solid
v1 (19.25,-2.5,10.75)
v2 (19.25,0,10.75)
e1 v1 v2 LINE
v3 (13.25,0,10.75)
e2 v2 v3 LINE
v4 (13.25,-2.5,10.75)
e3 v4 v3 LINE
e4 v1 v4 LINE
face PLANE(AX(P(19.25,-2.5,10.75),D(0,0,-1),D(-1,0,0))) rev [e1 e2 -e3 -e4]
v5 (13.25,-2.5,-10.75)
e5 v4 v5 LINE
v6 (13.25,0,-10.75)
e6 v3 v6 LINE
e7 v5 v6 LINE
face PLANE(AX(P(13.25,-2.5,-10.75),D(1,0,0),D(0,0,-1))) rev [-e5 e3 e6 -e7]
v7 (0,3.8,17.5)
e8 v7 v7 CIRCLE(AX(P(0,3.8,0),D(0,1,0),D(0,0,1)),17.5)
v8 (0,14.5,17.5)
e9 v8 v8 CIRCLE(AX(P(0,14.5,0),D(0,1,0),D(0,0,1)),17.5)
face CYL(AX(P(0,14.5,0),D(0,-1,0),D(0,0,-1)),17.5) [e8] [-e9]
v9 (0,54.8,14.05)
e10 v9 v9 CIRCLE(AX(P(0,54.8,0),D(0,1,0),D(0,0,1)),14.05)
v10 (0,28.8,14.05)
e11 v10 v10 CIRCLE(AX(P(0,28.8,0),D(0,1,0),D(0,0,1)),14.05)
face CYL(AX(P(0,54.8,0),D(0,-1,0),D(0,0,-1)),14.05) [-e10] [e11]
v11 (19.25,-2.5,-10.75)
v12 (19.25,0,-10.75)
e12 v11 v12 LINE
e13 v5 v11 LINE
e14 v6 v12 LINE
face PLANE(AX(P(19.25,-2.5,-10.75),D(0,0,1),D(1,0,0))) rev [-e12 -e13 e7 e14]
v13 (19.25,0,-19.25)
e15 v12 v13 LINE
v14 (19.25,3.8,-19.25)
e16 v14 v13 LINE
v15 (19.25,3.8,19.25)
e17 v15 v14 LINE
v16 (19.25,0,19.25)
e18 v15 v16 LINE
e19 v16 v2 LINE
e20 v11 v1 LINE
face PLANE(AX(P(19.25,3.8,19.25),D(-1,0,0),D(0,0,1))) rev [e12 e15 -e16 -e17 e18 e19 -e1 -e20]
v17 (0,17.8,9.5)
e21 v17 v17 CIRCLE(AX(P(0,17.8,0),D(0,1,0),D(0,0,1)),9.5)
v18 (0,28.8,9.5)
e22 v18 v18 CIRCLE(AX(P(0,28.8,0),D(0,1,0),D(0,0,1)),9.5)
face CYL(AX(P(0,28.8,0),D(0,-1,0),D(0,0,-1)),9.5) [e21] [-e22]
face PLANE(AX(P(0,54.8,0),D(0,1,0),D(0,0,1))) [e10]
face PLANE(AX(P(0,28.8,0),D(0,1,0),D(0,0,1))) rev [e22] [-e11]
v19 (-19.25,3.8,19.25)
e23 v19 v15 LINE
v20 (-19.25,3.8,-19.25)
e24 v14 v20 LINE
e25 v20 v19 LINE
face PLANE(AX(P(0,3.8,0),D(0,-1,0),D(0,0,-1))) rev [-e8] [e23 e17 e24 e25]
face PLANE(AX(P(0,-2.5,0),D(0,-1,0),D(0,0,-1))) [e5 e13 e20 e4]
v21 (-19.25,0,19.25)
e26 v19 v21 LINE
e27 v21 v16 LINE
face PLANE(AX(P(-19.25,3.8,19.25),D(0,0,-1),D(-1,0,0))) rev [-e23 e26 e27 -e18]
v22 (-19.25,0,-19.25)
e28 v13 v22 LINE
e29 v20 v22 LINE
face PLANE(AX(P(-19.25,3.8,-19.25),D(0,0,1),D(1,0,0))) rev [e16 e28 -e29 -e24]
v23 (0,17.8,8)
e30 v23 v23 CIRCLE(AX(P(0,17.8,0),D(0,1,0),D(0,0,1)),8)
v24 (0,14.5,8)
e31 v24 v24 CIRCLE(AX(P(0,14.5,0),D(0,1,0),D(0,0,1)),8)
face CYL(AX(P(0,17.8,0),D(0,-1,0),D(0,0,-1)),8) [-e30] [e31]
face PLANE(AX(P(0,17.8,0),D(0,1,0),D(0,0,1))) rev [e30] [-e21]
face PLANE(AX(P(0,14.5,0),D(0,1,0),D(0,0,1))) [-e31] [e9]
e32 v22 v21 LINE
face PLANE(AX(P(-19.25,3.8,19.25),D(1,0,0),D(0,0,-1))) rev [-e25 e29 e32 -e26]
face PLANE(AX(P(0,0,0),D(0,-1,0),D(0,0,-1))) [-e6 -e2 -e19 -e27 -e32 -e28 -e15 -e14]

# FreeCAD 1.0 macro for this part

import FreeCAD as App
import Part
import Sketcher
from FreeCAD import Vector
Q = App.Units.Quantity

doc = App.newDocument("Part")
body = doc.addObject("PartDesign::Body", "Body")

# Sketch on XZ plane
sketch1 = body.newObject("Sketcher::SketchObject", "Sketch")
sketch1.AttachmentSupport = (doc.getObject("XZ_Plane"), [""])
sketch1.MapMode = "FlatFace"
sketch1.addGeometry([
    Part.LineSegment(Vector(-19, -19, 0), Vector(-19, 19, 0)),
    Part.LineSegment(Vector(-19, 19, 0), Vector(19, 19, 0)),
    Part.LineSegment(Vector(19, 19, 0), Vector(19, -19, 0)),
    Part.LineSegment(Vector(19, -19, 0), Vector(-19, -19, 0)),
], False)
sketch1.addConstraint([
    Sketcher.Constraint("Coincident", 0, 2, 1, 1),
    Sketcher.Constraint("Coincident", 1, 2, 2, 1),
    Sketcher.Constraint("Coincident", 2, 2, 3, 1),
    Sketcher.Constraint("Coincident", 3, 2, 0, 1),
    Sketcher.Constraint("Vertical", 0),
    Sketcher.Constraint("Horizontal", 1),
    Sketcher.Constraint("Vertical", 2),
    Sketcher.Constraint("Horizontal", 3),
    Sketcher.Constraint("Symmetric", 0, 2, 2, 2, -1, 1),
    Sketcher.Constraint("Equal", 3, 0),
    Sketcher.Constraint("DistanceX", 1, 1, 1, 2, Q("38.5 mm")),
])
pad1 = body.newObject("PartDesign::Pad", "Pad")
pad1.Profile = sketch1
pad1.Length = 3.8
pad1.Reversed = True

# Sketch on XZ plane
sketch2 = body.newObject("Sketcher::SketchObject", "Sketch001")
sketch2.AttachmentSupport = (doc.getObject("XZ_Plane"), [""])
sketch2.MapMode = "FlatFace"
sketch2.AttachmentOffset = App.Placement(Vector(0, 0, -3.8), App.Rotation())
sketch2.addGeometry(Part.Circle(Vector(0, 0, 0), Vector(0, 0, 1), 18), False)
sketch2.addConstraint([
    Sketcher.Constraint("Coincident", 0, 3, -1, 1),
    Sketcher.Constraint("Diameter", 0, Q("35 mm")),
])
pad2 = body.newObject("PartDesign::Pad", "Pad001")
pad2.Profile = sketch2
pad2.Length = 10.7
pad2.Reversed = True

# Sketch on XZ plane
sketch3 = body.newObject("Sketcher::SketchObject", "Sketch002")
sketch3.AttachmentSupport = (doc.getObject("XZ_Plane"), [""])
sketch3.MapMode = "FlatFace"
sketch3.AttachmentOffset = App.Placement(Vector(0, 0, -14.5), App.Rotation())
sketch3.addGeometry(Part.Circle(Vector(0, 0, 0), Vector(0, 0, 1), 8), False)
sketch3.addConstraint([
    Sketcher.Constraint("Coincident", 0, 3, -1, 1),
    Sketcher.Constraint("Diameter", 0, Q("16 mm")),
])
pad3 = body.newObject("PartDesign::Pad", "Pad002")
pad3.Profile = sketch3
pad3.Length = 3.3
pad3.Reversed = True

# Sketch on XZ plane
sketch4 = body.newObject("Sketcher::SketchObject", "Sketch003")
sketch4.AttachmentSupport = (doc.getObject("XZ_Plane"), [""])
sketch4.MapMode = "FlatFace"
sketch4.AttachmentOffset = App.Placement(Vector(0, 0, -17.8), App.Rotation())
sketch4.addGeometry(Part.Circle(Vector(0, 0, 0), Vector(0, 0, 1), 10), False)
sketch4.addConstraint([
    Sketcher.Constraint("Coincident", 0, 3, -1, 1),
    Sketcher.Constraint("Diameter", 0, Q("19 mm")),
])
pad4 = body.newObject("PartDesign::Pad", "Pad003")
pad4.Profile = sketch4
pad4.Length = 11
pad4.Reversed = True

# Sketch on XZ plane
sketch5 = body.newObject("Sketcher::SketchObject", "Sketch004")
sketch5.AttachmentSupport = (doc.getObject("XZ_Plane"), [""])
sketch5.MapMode = "FlatFace"
sketch5.AttachmentOffset = App.Placement(Vector(0, 0, -28.8), App.Rotation())
sketch5.addGeometry(Part.Circle(Vector(0, 0, 0), Vector(0, 0, 1), 14), False)
sketch5.addConstraint([
    Sketcher.Constraint("Coincident", 0, 3, -1, 1),
    Sketcher.Constraint("Diameter", 0, Q("28.1 mm")),
])
pad5 = body.newObject("PartDesign::Pad", "Pad004")
pad5.Profile = sketch5
pad5.Length = 26
pad5.Reversed = True

# Sketch on XZ plane
sketch6 = body.newObject("Sketcher::SketchObject", "Sketch005")
sketch6.AttachmentSupport = (doc.getObject("XZ_Plane"), [""])
sketch6.MapMode = "FlatFace"
sketch6.addGeometry([
    Part.LineSegment(Vector(13, 11, 0), Vector(13, -11, 0)),
    Part.LineSegment(Vector(13, -11, 0), Vector(19, -11, 0)),
    Part.LineSegment(Vector(19, -11, 0), Vector(19, 11, 0)),
    Part.LineSegment(Vector(19, 11, 0), Vector(13, 11, 0)),
], False)
sketch6.addConstraint([
    Sketcher.Constraint("Coincident", 0, 2, 1, 1),
    Sketcher.Constraint("Coincident", 1, 2, 2, 1),
    Sketcher.Constraint("Coincident", 2, 2, 3, 1),
    Sketcher.Constraint("Coincident", 3, 2, 0, 1),
    Sketcher.Constraint("Vertical", 0),
    Sketcher.Constraint("Horizontal", 1),
    Sketcher.Constraint("Vertical", 2),
    Sketcher.Constraint("Horizontal", 3),
    Sketcher.Constraint("DistanceX", 1, 1, 1, 2, Q("6 mm")),
    Sketcher.Constraint("DistanceY", 0, 2, 0, 1, Q("21.5 mm")),
    Sketcher.Constraint("DistanceX", -1, 1, 0, 2, Q("13.25 mm")),
    Sketcher.Constraint("DistanceY", 0, 2, -1, 1, Q("10.75 mm")),
])
pad6 = body.newObject("PartDesign::Pad", "Pad005")
pad6.Profile = sketch6
pad6.Length = 2.5

doc.recompute()
